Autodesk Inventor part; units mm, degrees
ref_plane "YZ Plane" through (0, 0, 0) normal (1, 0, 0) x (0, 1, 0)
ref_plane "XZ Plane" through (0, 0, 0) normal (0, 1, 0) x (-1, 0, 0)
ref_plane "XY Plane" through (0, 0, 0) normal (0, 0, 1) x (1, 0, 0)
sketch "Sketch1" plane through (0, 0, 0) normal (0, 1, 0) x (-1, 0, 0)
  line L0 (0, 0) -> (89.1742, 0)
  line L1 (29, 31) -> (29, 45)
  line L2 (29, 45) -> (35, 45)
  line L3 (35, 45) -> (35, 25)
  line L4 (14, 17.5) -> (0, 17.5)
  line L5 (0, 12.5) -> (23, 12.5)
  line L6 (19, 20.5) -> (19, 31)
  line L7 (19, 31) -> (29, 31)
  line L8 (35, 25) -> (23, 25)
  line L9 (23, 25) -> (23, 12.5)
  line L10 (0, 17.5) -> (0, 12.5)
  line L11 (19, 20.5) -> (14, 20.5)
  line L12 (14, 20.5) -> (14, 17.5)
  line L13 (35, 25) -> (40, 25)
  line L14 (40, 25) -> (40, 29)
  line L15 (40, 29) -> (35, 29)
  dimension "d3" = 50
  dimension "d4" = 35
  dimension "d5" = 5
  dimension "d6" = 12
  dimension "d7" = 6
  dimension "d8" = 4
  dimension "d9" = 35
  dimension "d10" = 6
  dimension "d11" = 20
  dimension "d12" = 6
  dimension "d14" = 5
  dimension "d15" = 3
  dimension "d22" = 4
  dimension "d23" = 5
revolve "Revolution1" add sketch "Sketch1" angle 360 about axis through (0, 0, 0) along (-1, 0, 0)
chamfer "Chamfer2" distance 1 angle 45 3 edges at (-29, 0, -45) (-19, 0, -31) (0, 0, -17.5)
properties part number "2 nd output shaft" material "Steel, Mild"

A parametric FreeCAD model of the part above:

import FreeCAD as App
import Part
import Sketcher


def edges_at(feature, points):
    """Names of the edges that pass closest to the given points."""
    edges = feature.Shape.Edges
    near = lambda p: min(range(len(edges)), key=lambda i: edges[i].distToShape(Part.Vertex(*p))[0])
    return sorted({f"Edge{near(p) + 1}" for p in points})


def add_polygon(sketch, points):
    """Adds a closed chain of lines whose ends are joined by coincident constraints."""
    first, n = sketch.GeometryCount, len(points)
    for a, b in zip(points, points[1:] + points[:1]):
        sketch.addGeometry(Part.LineSegment(App.Vector(*a, 0), App.Vector(*b, 0)), False)
    for i in range(n):
        sketch.addConstraint(Sketcher.Constraint("Coincident", first + i, 2, first + (i + 1) % n, 1))

doc = App.newDocument("Part")
params = doc.addObject("Spreadsheet::Sheet", "Params")
for row, (alias, value) in enumerate([
    ("sketch1_width", "5 mm"),
    ("sketch1_width2", "6 mm"),
    ("sketch1_height", "3 mm"),
    ("sketch1_height2", "4 mm"),
    ("sketch1_height3", "10.5 mm"),
    ("revolution_angle", "360 deg"),
    ("chamfer_size", "1 mm"),
], start=1):
    params.set(f"A{row}", alias)
    params.set(f"B{row}", "=" + value)
    params.setAlias(f"B{row}", alias)

body = doc.addObject("PartDesign::Body", "Body")

sketch1 = doc.addObject("Sketcher::SketchObject", "Sketch")
body.addObject(sketch1)
sketch1.AttachmentSupport = (doc.XZ_Plane, [""])
sketch1.MapMode = "FlatFace"
add_polygon(sketch1, [(-29, 45), (-29, 31), (-19, 31), (-19, 20.5), (-14, 20.5), (-14, 17.5), (0, 17.5), (0, 12.5), (-23, 12.5), (-23, 25), (-40, 25), (-40, 29), (-35, 29), (-35, 45)])
sketch1.addConstraint(Sketcher.Constraint("Vertical", 0))
sketch1.addConstraint(Sketcher.Constraint("Horizontal", 1))
sketch1.addConstraint(Sketcher.Constraint("Vertical", 2))
sketch1.addConstraint(Sketcher.Constraint("Horizontal", 3))
sketch1.addConstraint(Sketcher.Constraint("Vertical", 4))
sketch1.addConstraint(Sketcher.Constraint("Horizontal", 5))
sketch1.addConstraint(Sketcher.Constraint("Vertical", 6))
sketch1.addConstraint(Sketcher.Constraint("Horizontal", 7))
sketch1.addConstraint(Sketcher.Constraint("Vertical", 8))
sketch1.addConstraint(Sketcher.Constraint("Horizontal", 9))
sketch1.addConstraint(Sketcher.Constraint("Vertical", 10))
sketch1.addConstraint(Sketcher.Constraint("Horizontal", 11))
sketch1.addConstraint(Sketcher.Constraint("Vertical", 12))
sketch1.addConstraint(Sketcher.Constraint("Horizontal", 13))
sketch1.addConstraint(Sketcher.Constraint("PointOnObject", 5, 2, -2))
sketch1.addConstraint(Sketcher.Constraint("Equal", 3, 11))
sketch1.addConstraint(Sketcher.Constraint("Equal", 5, 0))
sketch1.addConstraint(Sketcher.Constraint("Equal", 11, 6))
sketch1.addConstraint(Sketcher.Constraint("DistanceX", 3, 1, 3, 2, 5.0))
sketch1.addConstraint(Sketcher.Constraint("DistanceX", 13, 1, 13, 2, 6.0))
sketch1.addConstraint(Sketcher.Constraint("DistanceY", 4, 2, 4, 1, 3.0))
sketch1.addConstraint(Sketcher.Constraint("DistanceY", 10, 1, 10, 2, 4.0))
sketch1.addConstraint(Sketcher.Constraint("DistanceX", 11, 2, -1, 1, 35.0))
sketch1.addConstraint(Sketcher.Constraint("DistanceX", 7, 2, 2, 2, 4.0))
sketch1.addConstraint(Sketcher.Constraint("DistanceX", 0, 2, 7, 2, 6.0))
sketch1.addConstraint(Sketcher.Constraint("DistanceY", 8, 2, 1, 2, 6.0))
sketch1.addConstraint(Sketcher.Constraint("DistanceY", 2, 2, 2, 1, 10.5))
sketch1.addConstraint(Sketcher.Constraint("DistanceY", -1, 1, 0, 2, 31.0))
sketch1.setExpression("Constraints[32]", "Params.sketch1_width")
sketch1.setExpression("Constraints[33]", "Params.sketch1_width2")
sketch1.setExpression("Constraints[34]", "Params.sketch1_height")
sketch1.setExpression("Constraints[35]", "Params.sketch1_height2")
sketch1.setExpression("Constraints[40]", "Params.sketch1_height3")
revolution = doc.addObject("PartDesign::Revolution", "Revolution")
body.addObject(revolution)
revolution.Profile = sketch1
revolution.ReferenceAxis = (sketch1, ["H_Axis"])
revolution.setExpression("Angle", "Params.revolution_angle")
doc.recompute()

chamfer = doc.addObject("PartDesign::Chamfer", "Chamfer")
body.addObject(chamfer)
chamfer.Base = (revolution, edges_at(revolution, [(-29, 0, -45), (-19, 0, -31), (0, 0, -17.5)]))
chamfer.setExpression("Size", "Params.chamfer_size")

doc.recompute()
